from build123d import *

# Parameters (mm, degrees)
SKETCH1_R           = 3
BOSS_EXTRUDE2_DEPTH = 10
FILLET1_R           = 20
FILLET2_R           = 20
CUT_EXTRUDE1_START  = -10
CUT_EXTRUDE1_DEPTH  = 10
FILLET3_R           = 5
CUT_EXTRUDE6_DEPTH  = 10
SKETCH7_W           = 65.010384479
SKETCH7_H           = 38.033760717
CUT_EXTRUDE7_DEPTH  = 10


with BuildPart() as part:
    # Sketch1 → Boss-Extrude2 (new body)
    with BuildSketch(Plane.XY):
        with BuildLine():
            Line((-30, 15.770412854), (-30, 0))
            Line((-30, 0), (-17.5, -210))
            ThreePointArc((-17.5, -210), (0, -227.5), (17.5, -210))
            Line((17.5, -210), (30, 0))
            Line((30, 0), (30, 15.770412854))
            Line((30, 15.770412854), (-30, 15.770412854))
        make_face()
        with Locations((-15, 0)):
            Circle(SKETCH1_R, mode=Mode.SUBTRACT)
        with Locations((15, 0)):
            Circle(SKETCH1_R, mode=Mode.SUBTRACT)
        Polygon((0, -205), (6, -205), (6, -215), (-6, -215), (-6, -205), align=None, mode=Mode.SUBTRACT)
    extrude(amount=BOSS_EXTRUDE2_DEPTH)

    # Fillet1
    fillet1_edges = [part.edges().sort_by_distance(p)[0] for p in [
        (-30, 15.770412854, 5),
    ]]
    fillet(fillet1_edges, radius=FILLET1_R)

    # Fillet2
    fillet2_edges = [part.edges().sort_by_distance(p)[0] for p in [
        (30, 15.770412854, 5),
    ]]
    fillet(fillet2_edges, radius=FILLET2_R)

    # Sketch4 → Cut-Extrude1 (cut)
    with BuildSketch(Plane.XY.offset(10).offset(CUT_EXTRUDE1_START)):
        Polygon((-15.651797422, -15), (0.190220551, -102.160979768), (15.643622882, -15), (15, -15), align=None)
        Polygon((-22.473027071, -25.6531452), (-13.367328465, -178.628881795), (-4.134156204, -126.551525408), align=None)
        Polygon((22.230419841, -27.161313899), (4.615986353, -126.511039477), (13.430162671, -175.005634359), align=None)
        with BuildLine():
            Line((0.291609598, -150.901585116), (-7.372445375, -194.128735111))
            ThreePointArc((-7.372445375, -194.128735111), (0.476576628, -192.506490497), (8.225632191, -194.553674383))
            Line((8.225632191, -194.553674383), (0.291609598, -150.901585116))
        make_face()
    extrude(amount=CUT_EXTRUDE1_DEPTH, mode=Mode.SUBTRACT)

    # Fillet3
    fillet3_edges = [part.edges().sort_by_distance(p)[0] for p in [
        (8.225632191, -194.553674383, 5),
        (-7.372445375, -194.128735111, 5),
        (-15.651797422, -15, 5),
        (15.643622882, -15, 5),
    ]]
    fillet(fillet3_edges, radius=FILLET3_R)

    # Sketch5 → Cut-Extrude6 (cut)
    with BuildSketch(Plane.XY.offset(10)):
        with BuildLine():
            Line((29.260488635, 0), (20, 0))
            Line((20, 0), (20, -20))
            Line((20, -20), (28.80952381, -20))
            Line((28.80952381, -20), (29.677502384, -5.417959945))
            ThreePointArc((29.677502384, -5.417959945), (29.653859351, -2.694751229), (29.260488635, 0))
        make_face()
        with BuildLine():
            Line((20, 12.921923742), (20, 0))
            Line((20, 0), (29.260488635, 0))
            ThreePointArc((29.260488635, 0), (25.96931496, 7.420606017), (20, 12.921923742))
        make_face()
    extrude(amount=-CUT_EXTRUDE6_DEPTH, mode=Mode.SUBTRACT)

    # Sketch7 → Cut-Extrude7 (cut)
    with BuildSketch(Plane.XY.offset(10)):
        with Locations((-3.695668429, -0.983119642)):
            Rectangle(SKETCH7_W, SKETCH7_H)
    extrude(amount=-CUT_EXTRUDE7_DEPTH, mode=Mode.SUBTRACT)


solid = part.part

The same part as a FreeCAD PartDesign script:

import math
import FreeCAD as App
import Part
import Sketcher


def edges_at(feature, points):
    """Names of the edges that pass closest to the given points."""
    edges = feature.Shape.Edges
    near = lambda p: min(range(len(edges)), key=lambda i: edges[i].distToShape(Part.Vertex(*p))[0])
    return sorted({f"Edge{near(p) + 1}" for p in points})


def add_polygon(sketch, points):
    """Adds a closed chain of lines whose ends are joined by coincident constraints."""
    first, n = sketch.GeometryCount, len(points)
    for a, b in zip(points, points[1:] + points[:1]):
        sketch.addGeometry(Part.LineSegment(App.Vector(*a, 0), App.Vector(*b, 0)), False)
    for i in range(n):
        sketch.addConstraint(Sketcher.Constraint("Coincident", first + i, 2, first + (i + 1) % n, 1))

doc = App.newDocument("Part")
params = doc.addObject("Spreadsheet::Sheet", "Params")
for row, (alias, value) in enumerate([
    ("sketch1_diameter", "6 mm"),
    ("sketch1_radius", "17.5 mm"),
    ("sketch1_width", "60 mm"),
    ("sketch1_width2", "12 mm"),
    ("sketch1_height", "10 mm"),
    ("pad1_length", "10 mm"),
    ("fillet_radius", "20 mm"),
    ("fillet2_radius", "20 mm"),
    ("sketch2_radius", "17.5 mm"),
    ("pocket1_length", "10 mm"),
    ("fillet3_radius", "5 mm"),
    ("sketch3_radius", "20 mm"),
    ("pocket2_length", "10 mm"),
    ("pocket3_length", "10 mm"),
], start=1):
    params.set(f"A{row}", alias)
    params.set(f"B{row}", "=" + value)
    params.setAlias(f"B{row}", alias)

body = doc.addObject("PartDesign::Body", "Body")

# Sketch on XY plane
sketch1 = body.newObject("Sketcher::SketchObject", "Sketch")
sketch1.AttachmentSupport = (doc.getObject("XY_Plane"), [""])
sketch1.MapMode = "FlatFace"
sketch1.addGeometry(Part.LineSegment(App.Vector(-30, 15.8, 0), App.Vector(-30, 0, 0)), False)  # 0
sketch1.addGeometry(Part.LineSegment(App.Vector(-30, 0, 0), App.Vector(-17.5, -210, 0)), False)  # 1
sketch1.addGeometry(Part.ArcOfCircle(Part.Circle(App.Vector(0, -210, 0), App.Vector(0, 0, 1), 17.5), math.radians(180), math.radians(360)), False)  # 2
sketch1.addGeometry(Part.LineSegment(App.Vector(17.5, -210, 0), App.Vector(30, 0, 0)), False)  # 3
sketch1.addGeometry(Part.LineSegment(App.Vector(30, 0, 0), App.Vector(30, 15.8, 0)), False)  # 4
sketch1.addGeometry(Part.LineSegment(App.Vector(30, 15.8, 0), App.Vector(-30, 15.8, 0)), False)  # 5
add_polygon(sketch1, [(-6, -205), (6, -205), (6, -215), (-6, -215)])  # lines 6-9
sketch1.addGeometry(Part.Circle(App.Vector(-15, 0, 0), App.Vector(0, 0, 1), 3), False)  # 10
sketch1.addGeometry(Part.Circle(App.Vector(15, 0, 0), App.Vector(0, 0, 1), 3), False)  # 11
sketch1.addConstraint([
    Sketcher.Constraint("Coincident", 0, 2, 1, 1),
    Sketcher.Constraint("Coincident", 1, 2, 2, 1),
    Sketcher.Constraint("Coincident", 2, 2, 3, 1),
    Sketcher.Constraint("Coincident", 3, 2, 4, 1),
    Sketcher.Constraint("Coincident", 4, 2, 5, 1),
    Sketcher.Constraint("Coincident", 5, 2, 0, 1),
    Sketcher.Constraint("Vertical", 0),
    Sketcher.Constraint("Vertical", 4),
    Sketcher.Constraint("Horizontal", 5),
    Sketcher.Constraint("Horizontal", 6),
    Sketcher.Constraint("Vertical", 7),
    Sketcher.Constraint("Horizontal", 8),
    Sketcher.Constraint("Vertical", 9),
    Sketcher.Constraint("Equal", 10, 11),
    Sketcher.Constraint("Symmetric", 10, 3, 11, 3, -1, 1),
    Sketcher.Constraint("Symmetric", 0, 2, 3, 2, -1, 1),
    Sketcher.Constraint("Symmetric", 1, 2, 2, 2, -2),
    Sketcher.Constraint("PointOnObject", 10, 3, -1),
    Sketcher.Constraint("PointOnObject", 0, 2, -1),
    Sketcher.Constraint("Horizontal", 2, 3, 1, 2),
    Sketcher.Constraint("Diameter", 10, 6.0),
    Sketcher.Constraint("Radius", 2, 17.5),
    Sketcher.Constraint("DistanceX", 5, 2, 5, 1, 60.0),
    Sketcher.Constraint("DistanceX", 6, 1, 6, 2, 12.0),
    Sketcher.Constraint("DistanceY", 7, 2, 7, 1, 10.0),
    Sketcher.Constraint("DistanceY", 2, 3, -1, 1, 210.0),
    Sketcher.Constraint("DistanceX", 10, 3, -1, 1, 15.0),
    Sketcher.Constraint("DistanceX", -1, 1, 6, 2, 6.0),
    Sketcher.Constraint("DistanceY", 6, 2, -1, 1, 205.0),
    Sketcher.Constraint("DistanceY", 0, 2, 0, 1, 15.770413),
])
sketch1.setExpression("Constraints[24]", "Params.sketch1_diameter")
sketch1.setExpression("Constraints[25]", "Params.sketch1_radius")
sketch1.setExpression("Constraints[26]", "Params.sketch1_width")
sketch1.setExpression("Constraints[27]", "Params.sketch1_width2")
sketch1.setExpression("Constraints[28]", "Params.sketch1_height")
pad1 = body.newObject("PartDesign::Pad", "Pad")
pad1.Profile = sketch1
pad1.setExpression("Length", "Params.pad1_length")
doc.recompute()

fillet = body.newObject("PartDesign::Fillet", "Fillet")
fillet.Base = (pad1, edges_at(pad1, [(-30, 15.77, 5)]))
fillet.setExpression("Radius", "Params.fillet_radius")
doc.recompute()

fillet2 = body.newObject("PartDesign::Fillet", "Fillet001")
fillet2.Base = (fillet, edges_at(fillet, [(30, 15.77, 5)]))
fillet2.setExpression("Radius", "Params.fillet2_radius")

# Sketch on XY plane
sketch2 = body.newObject("Sketcher::SketchObject", "Sketch001")
sketch2.AttachmentSupport = (doc.getObject("XY_Plane"), [""])
sketch2.MapMode = "FlatFace"
add_polygon(sketch2, [(-16, -15), (0, -102), (16, -15)])  # lines 0-2
add_polygon(sketch2, [(-22, -26), (-13, -179), (-4, -127)])  # lines 3-5
add_polygon(sketch2, [(22, -27), (5, -127), (13, -175)])  # lines 6-8
sketch2.addGeometry(Part.LineSegment(App.Vector(0, -151, 0), App.Vector(-7, -194, 0)), False)  # 9
sketch2.addGeometry(Part.ArcOfCircle(Part.Circle(App.Vector(0, -210, 0), App.Vector(0, 0, 1), 17), math.radians(62), math.radians(115)), False)  # 10
sketch2.addGeometry(Part.LineSegment(App.Vector(8, -195, 0), App.Vector(0, -151, 0)), False)  # 11
sketch2.addConstraint([
    Sketcher.Constraint("Coincident", 9, 2, 10, 2),
    Sketcher.Constraint("Coincident", 10, 1, 11, 1),
    Sketcher.Constraint("Coincident", 11, 2, 9, 1),
    Sketcher.Constraint("Horizontal", 2),
    Sketcher.Constraint("PointOnObject", 10, 3, -2),
    Sketcher.Constraint("Parallel", 1, 4),
    Sketcher.Constraint("Parallel", 0, 5),
    Sketcher.Constraint("Parallel", 4, 6),
    Sketcher.Constraint("Parallel", 5, 7),
    Sketcher.Constraint("Parallel", 6, 9),
    Sketcher.Constraint("Parallel", 7, 11),
    Sketcher.Constraint("Radius", 10, 17.5),
    Sketcher.Constraint("DistanceY", 10, 3, -1, 1, 210.0),
    Sketcher.Constraint("DistanceY", 1, 2, -1, 1, 15.0),
    Sketcher.Constraint("Distance", 8, 148.106001),
    Sketcher.Constraint("Distance", 3, 153.2465),
    Sketcher.Constraint("Distance", 7, 49.289101),
    Sketcher.Constraint("Distance", 9, 43.901301),
    Sketcher.Constraint("DistanceX", 2, 2, 2, 1, 31.29542),
    Sketcher.Constraint("DistanceX", 5, 2, 3, 2, 9.105699),
    Sketcher.Constraint("DistanceX", 0, 2, 8, 2, 22.040199),
    Sketcher.Constraint("DistanceY", 9, 2, 7, 2, 19.123101),
    Sketcher.Constraint("Distance", 0, 88.588972),
    Sketcher.Constraint("Distance", 4, 52.889531),
    Sketcher.Constraint("Distance", 11, 44.367258),
    Sketcher.Constraint("DistanceX", -1, 1, 0, 2, 0.190221),
    Sketcher.Constraint("DistanceX", 3, 2, -1, 1, 13.367328),
    Sketcher.Constraint("DistanceY", 3, 2, -1, 1, 178.628882),
])
sketch2.setExpression("Constraints[20]", "Params.sketch2_radius")
pocket1 = body.newObject("PartDesign::Pocket", "Pocket")
pocket1.Profile = sketch2
pocket1.setExpression("Length", "Params.pocket1_length")
pocket1.Reversed = True
doc.recompute()

fillet3 = body.newObject("PartDesign::Fillet", "Fillet002")
fillet3.Base = (pocket1, edges_at(pocket1, [
    (8.226, -194.554, 5),
    (-7.372, -194.129, 5),
    (-15.652, -15, 5),
    (15.644, -15, 5),
]))
fillet3.setExpression("Radius", "Params.fillet3_radius")

# Sketch on XY plane
sketch3 = body.newObject("Sketcher::SketchObject", "Sketch002")
sketch3.AttachmentSupport = (doc.getObject("XY_Plane"), [""])
sketch3.MapMode = "FlatFace"
sketch3.AttachmentOffset = App.Placement(App.Vector(0, 0, 10), App.Rotation())
sketch3.addGeometry([
    Part.LineSegment(App.Vector(20, -20, 0), App.Vector(29, -20, 0)),  # 0
    Part.LineSegment(App.Vector(29, -20, 0), App.Vector(30, -5, 0)),  # 1
    Part.ArcOfCircle(Part.Circle(App.Vector(10, -4, 0), App.Vector(0, 0, 1), 20), math.radians(-3.41), math.radians(12.21)),  # 2
    Part.ArcOfCircle(Part.Circle(App.Vector(10, -4, 0), App.Vector(0, 0, 1), 20), math.radians(12), math.radians(59)),  # 3
    Part.LineSegment(App.Vector(20, 13, 0), App.Vector(20, -20, 0)),  # 4
], False)
sketch3.addConstraint([
    Sketcher.Constraint("Coincident", 0, 2, 1, 1),
    Sketcher.Constraint("Tangent", 1, 2, 2, 1),
    Sketcher.Constraint("Tangent", 2, 2, 3, 1),
    Sketcher.Constraint("Coincident", 3, 2, 4, 1),
    Sketcher.Constraint("Coincident", 4, 2, 0, 1),
    Sketcher.Constraint("Horizontal", 0),
    Sketcher.Constraint("Vertical", 4),
    Sketcher.Constraint("Equal", 2, 3),
    Sketcher.Constraint("PointOnObject", 2, 2, -1),
    Sketcher.Constraint("Radius", 2, 20.0),
    Sketcher.Constraint("DistanceY", 0, 2, -1, 1, 20.0),
    Sketcher.Constraint("DistanceX", -1, 1, 3, 2, 20.0),
    Sketcher.Constraint("Distance", 1, 14.60785),
    Sketcher.Constraint("DistanceX", 0, 1, 0, 2, 8.809524),
    Sketcher.Constraint("DistanceY", 4, 2, 4, 1, 32.921924),
])
sketch3.setExpression("Constraints[9]", "Params.sketch3_radius")
pocket2 = body.newObject("PartDesign::Pocket", "Pocket001")
pocket2.Profile = sketch3
pocket2.setExpression("Length", "Params.pocket2_length")

# Sketch on XY plane
sketch4 = body.newObject("Sketcher::SketchObject", "Sketch003")
sketch4.AttachmentSupport = (doc.getObject("XY_Plane"), [""])
sketch4.MapMode = "FlatFace"
sketch4.AttachmentOffset = App.Placement(App.Vector(0, 0, 10), App.Rotation())
add_polygon(sketch4, [(-36, 18), (-36, -20), (29, -20), (29, 18)])  # lines 0-3
sketch4.addConstraint([
    Sketcher.Constraint("Vertical", 0),
    Sketcher.Constraint("Horizontal", 1),
    Sketcher.Constraint("Vertical", 2),
    Sketcher.Constraint("Horizontal", 3),
    Sketcher.Constraint("DistanceY", 0, 2, -1, 1, 20.0),
    Sketcher.Constraint("DistanceY", 0, 2, 0, 1, 38.033761),
    Sketcher.Constraint("DistanceX", 1, 1, 1, 2, 65.010384),
    Sketcher.Constraint("DistanceX", 0, 2, -1, 1, 36.200861),
])
pocket3 = body.newObject("PartDesign::Pocket", "Pocket002")
pocket3.Profile = sketch4
pocket3.setExpression("Length", "Params.pocket3_length")

doc.recompute()
